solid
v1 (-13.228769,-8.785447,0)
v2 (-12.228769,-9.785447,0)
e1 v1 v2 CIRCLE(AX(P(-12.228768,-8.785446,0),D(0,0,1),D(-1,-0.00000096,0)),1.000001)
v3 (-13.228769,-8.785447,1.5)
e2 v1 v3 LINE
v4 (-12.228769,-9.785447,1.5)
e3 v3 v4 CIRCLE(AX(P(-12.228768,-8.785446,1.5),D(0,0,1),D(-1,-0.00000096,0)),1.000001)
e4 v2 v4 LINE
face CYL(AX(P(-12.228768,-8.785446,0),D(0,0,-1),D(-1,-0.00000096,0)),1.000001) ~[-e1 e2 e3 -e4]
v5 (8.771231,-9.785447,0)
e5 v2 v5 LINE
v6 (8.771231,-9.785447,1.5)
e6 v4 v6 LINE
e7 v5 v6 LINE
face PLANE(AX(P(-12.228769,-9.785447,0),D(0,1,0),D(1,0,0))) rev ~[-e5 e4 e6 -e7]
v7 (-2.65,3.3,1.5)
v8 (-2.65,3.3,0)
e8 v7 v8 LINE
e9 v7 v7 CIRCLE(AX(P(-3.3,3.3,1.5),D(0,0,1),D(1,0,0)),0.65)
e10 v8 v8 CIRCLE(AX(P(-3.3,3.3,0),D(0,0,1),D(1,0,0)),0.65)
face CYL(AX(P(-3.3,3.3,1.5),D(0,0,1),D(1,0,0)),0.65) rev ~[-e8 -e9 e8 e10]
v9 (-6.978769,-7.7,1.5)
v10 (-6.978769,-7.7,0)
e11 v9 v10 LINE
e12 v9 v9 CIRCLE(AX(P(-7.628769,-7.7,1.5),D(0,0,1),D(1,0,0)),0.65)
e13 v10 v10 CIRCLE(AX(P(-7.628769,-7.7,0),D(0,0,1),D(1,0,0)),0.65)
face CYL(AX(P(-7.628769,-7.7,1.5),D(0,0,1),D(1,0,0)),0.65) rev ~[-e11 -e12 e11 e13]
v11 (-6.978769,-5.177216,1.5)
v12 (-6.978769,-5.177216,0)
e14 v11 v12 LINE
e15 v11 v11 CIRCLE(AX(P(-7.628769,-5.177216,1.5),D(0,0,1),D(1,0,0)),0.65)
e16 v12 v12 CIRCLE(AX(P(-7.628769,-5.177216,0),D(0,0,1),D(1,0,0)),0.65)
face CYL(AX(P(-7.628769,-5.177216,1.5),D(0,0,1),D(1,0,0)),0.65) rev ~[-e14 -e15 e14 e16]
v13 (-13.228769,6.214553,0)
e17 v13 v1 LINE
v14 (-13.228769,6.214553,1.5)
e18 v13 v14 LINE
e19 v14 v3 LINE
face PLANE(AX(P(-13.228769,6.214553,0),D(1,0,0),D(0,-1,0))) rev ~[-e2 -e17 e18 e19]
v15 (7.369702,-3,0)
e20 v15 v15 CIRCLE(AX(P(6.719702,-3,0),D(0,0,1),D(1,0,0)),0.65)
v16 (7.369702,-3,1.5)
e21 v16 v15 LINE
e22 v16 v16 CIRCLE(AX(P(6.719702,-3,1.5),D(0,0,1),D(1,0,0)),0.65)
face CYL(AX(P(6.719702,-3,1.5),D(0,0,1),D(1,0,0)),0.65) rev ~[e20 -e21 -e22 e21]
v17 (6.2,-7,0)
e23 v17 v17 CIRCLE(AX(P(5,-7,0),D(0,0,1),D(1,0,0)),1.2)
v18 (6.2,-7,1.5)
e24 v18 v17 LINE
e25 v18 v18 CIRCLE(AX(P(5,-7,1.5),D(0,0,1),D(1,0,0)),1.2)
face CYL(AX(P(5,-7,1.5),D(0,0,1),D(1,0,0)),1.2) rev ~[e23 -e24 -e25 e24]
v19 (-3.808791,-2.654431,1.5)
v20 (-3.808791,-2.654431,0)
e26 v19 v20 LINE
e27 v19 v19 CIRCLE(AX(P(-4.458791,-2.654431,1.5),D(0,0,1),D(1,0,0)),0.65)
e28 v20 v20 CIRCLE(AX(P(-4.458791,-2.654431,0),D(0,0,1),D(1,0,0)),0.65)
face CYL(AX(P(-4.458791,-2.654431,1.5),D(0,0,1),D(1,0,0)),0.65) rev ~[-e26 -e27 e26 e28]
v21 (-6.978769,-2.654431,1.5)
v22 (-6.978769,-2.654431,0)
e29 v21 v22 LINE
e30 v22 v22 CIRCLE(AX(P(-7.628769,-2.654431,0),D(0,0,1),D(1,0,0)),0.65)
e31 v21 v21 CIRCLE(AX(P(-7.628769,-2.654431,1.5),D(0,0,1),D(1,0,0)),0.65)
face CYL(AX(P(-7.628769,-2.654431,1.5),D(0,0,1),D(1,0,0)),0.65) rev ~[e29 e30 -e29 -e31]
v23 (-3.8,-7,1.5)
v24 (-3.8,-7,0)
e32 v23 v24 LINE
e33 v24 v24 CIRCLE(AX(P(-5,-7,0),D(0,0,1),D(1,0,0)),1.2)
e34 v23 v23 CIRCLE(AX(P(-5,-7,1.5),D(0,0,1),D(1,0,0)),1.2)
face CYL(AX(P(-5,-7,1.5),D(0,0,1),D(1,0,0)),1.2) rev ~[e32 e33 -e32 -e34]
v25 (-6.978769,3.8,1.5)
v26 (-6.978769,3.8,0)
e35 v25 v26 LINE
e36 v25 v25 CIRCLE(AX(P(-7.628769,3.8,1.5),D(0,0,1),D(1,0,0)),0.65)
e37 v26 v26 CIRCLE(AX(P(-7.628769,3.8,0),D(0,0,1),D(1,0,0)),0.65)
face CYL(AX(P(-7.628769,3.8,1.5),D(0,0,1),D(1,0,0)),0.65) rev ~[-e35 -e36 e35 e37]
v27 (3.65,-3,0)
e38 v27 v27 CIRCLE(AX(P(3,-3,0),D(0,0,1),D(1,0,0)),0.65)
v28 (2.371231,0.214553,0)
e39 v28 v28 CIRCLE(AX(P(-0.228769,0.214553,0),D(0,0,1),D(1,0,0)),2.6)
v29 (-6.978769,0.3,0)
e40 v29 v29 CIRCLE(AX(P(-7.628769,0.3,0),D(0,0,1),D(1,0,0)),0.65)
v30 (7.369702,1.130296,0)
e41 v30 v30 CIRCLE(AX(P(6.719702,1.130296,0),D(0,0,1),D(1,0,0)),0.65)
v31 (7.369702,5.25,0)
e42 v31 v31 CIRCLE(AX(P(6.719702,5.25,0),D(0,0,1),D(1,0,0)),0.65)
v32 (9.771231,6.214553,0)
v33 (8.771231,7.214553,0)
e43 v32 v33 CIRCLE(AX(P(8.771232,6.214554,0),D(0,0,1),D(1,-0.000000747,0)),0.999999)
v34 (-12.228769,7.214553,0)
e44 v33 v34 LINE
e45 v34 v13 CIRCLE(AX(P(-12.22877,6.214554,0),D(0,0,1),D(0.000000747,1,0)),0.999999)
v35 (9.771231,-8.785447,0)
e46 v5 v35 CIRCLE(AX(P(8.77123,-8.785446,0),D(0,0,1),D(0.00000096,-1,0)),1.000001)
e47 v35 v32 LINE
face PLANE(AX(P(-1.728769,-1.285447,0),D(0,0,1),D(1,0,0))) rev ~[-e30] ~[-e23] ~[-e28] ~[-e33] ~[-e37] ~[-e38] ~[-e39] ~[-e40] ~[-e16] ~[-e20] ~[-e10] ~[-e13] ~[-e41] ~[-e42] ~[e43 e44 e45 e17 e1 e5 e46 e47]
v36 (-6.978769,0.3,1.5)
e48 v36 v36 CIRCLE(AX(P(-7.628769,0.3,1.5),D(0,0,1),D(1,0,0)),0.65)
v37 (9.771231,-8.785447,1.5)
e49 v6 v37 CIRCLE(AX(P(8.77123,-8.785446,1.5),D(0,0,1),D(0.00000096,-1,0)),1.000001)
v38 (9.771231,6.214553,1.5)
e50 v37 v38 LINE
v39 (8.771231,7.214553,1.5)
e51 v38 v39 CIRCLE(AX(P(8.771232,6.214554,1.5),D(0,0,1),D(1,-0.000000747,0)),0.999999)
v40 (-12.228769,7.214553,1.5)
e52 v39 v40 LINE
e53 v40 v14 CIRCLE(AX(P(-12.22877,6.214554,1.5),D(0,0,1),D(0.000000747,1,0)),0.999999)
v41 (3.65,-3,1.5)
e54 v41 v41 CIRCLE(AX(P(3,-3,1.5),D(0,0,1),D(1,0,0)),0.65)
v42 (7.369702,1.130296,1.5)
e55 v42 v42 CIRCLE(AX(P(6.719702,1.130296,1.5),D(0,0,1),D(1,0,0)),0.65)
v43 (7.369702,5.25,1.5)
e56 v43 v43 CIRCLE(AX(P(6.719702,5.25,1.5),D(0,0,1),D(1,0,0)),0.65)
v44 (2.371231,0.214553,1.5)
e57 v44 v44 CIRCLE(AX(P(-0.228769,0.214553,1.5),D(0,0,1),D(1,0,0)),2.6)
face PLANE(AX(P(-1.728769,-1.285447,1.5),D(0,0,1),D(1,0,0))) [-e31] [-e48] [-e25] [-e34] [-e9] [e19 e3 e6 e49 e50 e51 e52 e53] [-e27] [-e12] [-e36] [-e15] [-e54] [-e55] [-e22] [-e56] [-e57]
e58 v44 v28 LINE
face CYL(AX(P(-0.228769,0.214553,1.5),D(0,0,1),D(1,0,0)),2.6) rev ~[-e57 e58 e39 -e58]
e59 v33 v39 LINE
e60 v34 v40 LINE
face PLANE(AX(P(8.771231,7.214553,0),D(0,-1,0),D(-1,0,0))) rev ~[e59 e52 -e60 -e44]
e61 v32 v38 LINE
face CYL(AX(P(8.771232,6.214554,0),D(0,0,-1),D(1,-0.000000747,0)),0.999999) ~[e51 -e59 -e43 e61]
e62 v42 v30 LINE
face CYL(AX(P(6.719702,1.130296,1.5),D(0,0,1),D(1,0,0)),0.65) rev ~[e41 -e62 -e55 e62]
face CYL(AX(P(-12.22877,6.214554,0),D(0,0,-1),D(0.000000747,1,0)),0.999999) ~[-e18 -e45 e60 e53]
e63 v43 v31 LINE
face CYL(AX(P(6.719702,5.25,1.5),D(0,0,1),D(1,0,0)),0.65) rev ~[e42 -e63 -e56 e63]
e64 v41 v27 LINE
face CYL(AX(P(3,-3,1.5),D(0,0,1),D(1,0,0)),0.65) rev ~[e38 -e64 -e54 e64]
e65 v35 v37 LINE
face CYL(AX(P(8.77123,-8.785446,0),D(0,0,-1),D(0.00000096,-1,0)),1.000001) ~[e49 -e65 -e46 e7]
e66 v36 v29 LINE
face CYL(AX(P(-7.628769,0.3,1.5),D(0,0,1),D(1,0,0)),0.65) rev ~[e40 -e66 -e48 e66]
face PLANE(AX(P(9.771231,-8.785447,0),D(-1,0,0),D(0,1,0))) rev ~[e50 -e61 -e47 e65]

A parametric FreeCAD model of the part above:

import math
import FreeCAD as App
import Part
import Sketcher

V = App.Vector
Q = App.Units.Quantity

doc = App.newDocument("Part")
body = doc.addObject("PartDesign::Body", "Body")

sketch1 = body.newObject("Sketcher::SketchObject", "Sketch")
sketch1.AttachmentSupport = (doc.getObject("XY_Plane"), [""])
sketch1.MapMode = "FlatFace"
sketch1.addGeometry(Part.LineSegment(V(8.771231, 7.214553, 0), V(-12.228769, 7.214553, 0)), False)
sketch1.addGeometry(Part.ArcOfCircle(Part.Circle(V(-12.22877, 6.214554, 0), V(0, 0, 1), 0.999999), math.radians(89.999957), math.radians(180.000043)), False)
sketch1.addGeometry(Part.LineSegment(V(-13.228769, 6.214553, 0), V(-13.228769, -8.785447, 0)), False)
sketch1.addGeometry(Part.ArcOfCircle(Part.Circle(V(-12.228768, -8.785446, 0), V(0, 0, 1), 1.000001), math.radians(-179.999945), math.radians(-90.000055)), False)
sketch1.addGeometry(Part.LineSegment(V(-12.228769, -9.785447, 0), V(8.771231, -9.785447, 0)), False)
sketch1.addGeometry(Part.ArcOfCircle(Part.Circle(V(8.77123, -8.785446, 0), V(0, 0, 1), 1.000001), math.radians(-89.999945), math.radians(-0.000055)), False)
sketch1.addGeometry(Part.LineSegment(V(9.771231, -8.785447, 0), V(9.771231, 6.214553, 0)), False)
sketch1.addGeometry(Part.ArcOfCircle(Part.Circle(V(8.771232, 6.214554, 0), V(0, 0, 1), 0.999999), math.radians(-0.000043), math.radians(90.000043)), False)
sketch1.addConstraint(Sketcher.Constraint("Tangent", 0, 2, 1, 1))
sketch1.addConstraint(Sketcher.Constraint("Tangent", 1, 2, 2, 1))
sketch1.addConstraint(Sketcher.Constraint("Tangent", 2, 2, 3, 1))
sketch1.addConstraint(Sketcher.Constraint("Tangent", 3, 2, 4, 1))
sketch1.addConstraint(Sketcher.Constraint("Tangent", 4, 2, 5, 1))
sketch1.addConstraint(Sketcher.Constraint("Tangent", 5, 2, 6, 1))
sketch1.addConstraint(Sketcher.Constraint("Tangent", 6, 2, 7, 1))
sketch1.addConstraint(Sketcher.Constraint("Tangent", 7, 2, 0, 1))
sketch1.addConstraint(Sketcher.Constraint("Horizontal", 0))
sketch1.addConstraint(Sketcher.Constraint("Vertical", 2))
sketch1.addConstraint(Sketcher.Constraint("Horizontal", 4))
sketch1.addConstraint(Sketcher.Constraint("Vertical", 6))
sketch1.addConstraint(Sketcher.Constraint("Equal", 1, 3))
sketch1.addConstraint(Sketcher.Constraint("Equal", 3, 5))
sketch1.addConstraint(Sketcher.Constraint("Equal", 5, 7))
sketch1.addConstraint(Sketcher.Constraint("Radius", 1, Q("0.999999 mm")))
sketch1.addConstraint(Sketcher.Constraint("DistanceX", 0, 2, 0, 1, Q("21 mm")))
sketch1.addConstraint(Sketcher.Constraint("DistanceY", 2, 2, 2, 1, Q("15 mm")))
sketch1.addConstraint(Sketcher.Constraint("DistanceX", 1, 3, -1, 1, Q("12.22877 mm")))
sketch1.addConstraint(Sketcher.Constraint("DistanceY", -1, 1, 1, 3, Q("6.214554 mm")))
pad1 = body.newObject("PartDesign::Pad", "Pad")
pad1.Profile = sketch1
pad1.Length = 1.5

sketch2 = body.newObject("Sketcher::SketchObject", "Sketch001")
sketch2.AttachmentSupport = (doc.getObject("XY_Plane"), [""])
sketch2.MapMode = "FlatFace"
sketch2.AttachmentOffset = App.Placement(V(0, 0, 1.5), App.Rotation())
sketch2.addGeometry(Part.Circle(V(-5, -7, 0), V(0, 0, 1), 1.2), False)
sketch2.addGeometry(Part.Circle(V(5, -7, 0), V(0, 0, 1), 1.2), False)
sketch2.addConstraint(Sketcher.Constraint("Equal", 0, 1))
sketch2.addConstraint(Sketcher.Constraint("Symmetric", 0, 3, 1, 3, -2))
sketch2.addConstraint(Sketcher.Constraint("Diameter", 0, Q("2.4 mm")))
sketch2.addConstraint(Sketcher.Constraint("DistanceX", 0, 3, -1, 1, Q("5 mm")))
sketch2.addConstraint(Sketcher.Constraint("DistanceY", 0, 3, -1, 1, Q("7 mm")))
pocket1 = body.newObject("PartDesign::Pocket", "Pocket")
pocket1.Profile = sketch2
pocket1.Length = 4

sketch3 = body.newObject("Sketcher::SketchObject", "Sketch002")
sketch3.AttachmentSupport = (doc.getObject("XY_Plane"), [""])
sketch3.MapMode = "FlatFace"
sketch3.AttachmentOffset = App.Placement(V(0, 0, 1.5), App.Rotation())
sketch3.addGeometry(Part.Circle(V(-7.628769, -7.7, 0), V(0, 0, 1), 0.65), False)
sketch3.addGeometry(Part.Circle(V(-7.628769, -5.177216, 0), V(0, 0, 1), 0.65), False)
sketch3.addGeometry(Part.Circle(V(-7.628769, -2.654431, 0), V(0, 0, 1), 0.65), False)
sketch3.addGeometry(Part.Circle(V(-4.458791, -2.654431, 0), V(0, 0, 1), 0.65), False)
sketch3.addConstraint(Sketcher.Constraint("Equal", 0, 1))
sketch3.addConstraint(Sketcher.Constraint("Equal", 1, 2))
sketch3.addConstraint(Sketcher.Constraint("Equal", 2, 3))
sketch3.addConstraint(Sketcher.Constraint("Horizontal", 2, 3, 3, 3))
sketch3.addConstraint(Sketcher.Constraint("Vertical", 0, 3, 1, 3))
sketch3.addConstraint(Sketcher.Constraint("Vertical", 1, 3, 2, 3))
sketch3.addConstraint(Sketcher.Constraint("Diameter", 0, Q("1.3 mm")))
sketch3.addConstraint(Sketcher.Constraint("DistanceY", 0, 3, -1, 1, Q("7.7 mm")))
sketch3.addConstraint(Sketcher.Constraint("DistanceX", 0, 3, -1, 1, Q("7.628769 mm")))
sketch3.addConstraint(Sketcher.Constraint("DistanceY", 2, 3, -1, 1, Q("2.654431 mm")))
sketch3.addConstraint(Sketcher.Constraint("DistanceX", 3, 3, -1, 1, Q("4.458791 mm")))
sketch3.addConstraint(Sketcher.Constraint("DistanceY", 1, 3, -1, 1, Q("5.177216 mm")))
pocket2 = body.newObject("PartDesign::Pocket", "Pocket001")
pocket2.Profile = sketch3
pocket2.Length = 25

sketch4 = body.newObject("Sketcher::SketchObject", "Sketch003")
sketch4.AttachmentSupport = (doc.getObject("XY_Plane"), [""])
sketch4.MapMode = "FlatFace"
sketch4.AttachmentOffset = App.Placement(V(0, 0, 1.5), App.Rotation())
sketch4.addGeometry(Part.Circle(V(6.719702, 5.25, 0), V(0, 0, 1), 0.65), False)
sketch4.addGeometry(Part.Circle(V(6.719702, 1.130296, 0), V(0, 0, 1), 0.65), False)
sketch4.addGeometry(Part.Circle(V(6.719702, -3, 0), V(0, 0, 1), 0.65), False)
sketch4.addConstraint(Sketcher.Constraint("Equal", 0, 1))
sketch4.addConstraint(Sketcher.Constraint("Equal", 1, 2))
sketch4.addConstraint(Sketcher.Constraint("Vertical", 0, 3, 1, 3))
sketch4.addConstraint(Sketcher.Constraint("Vertical", 1, 3, 2, 3))
sketch4.addConstraint(Sketcher.Constraint("Diameter", 0, Q("1.3 mm")))
sketch4.addConstraint(Sketcher.Constraint("DistanceY", 2, 3, -1, 1, Q("3 mm")))
sketch4.addConstraint(Sketcher.Constraint("DistanceY", -1, 1, 0, 3, Q("5.25 mm")))
sketch4.addConstraint(Sketcher.Constraint("DistanceX", -1, 1, 0, 3, Q("6.719702 mm")))
sketch4.addConstraint(Sketcher.Constraint("DistanceY", -1, 1, 1, 3, Q("1.130296 mm")))
pocket3 = body.newObject("PartDesign::Pocket", "Pocket002")
pocket3.Profile = sketch4
pocket3.Length = 25

sketch5 = body.newObject("Sketcher::SketchObject", "Sketch004")
sketch5.AttachmentSupport = (doc.getObject("XY_Plane"), [""])
sketch5.MapMode = "FlatFace"
sketch5.AttachmentOffset = App.Placement(V(0, 0, 1.5), App.Rotation())
sketch5.addGeometry(Part.Circle(V(-7.628769, 3.8, 0), V(0, 0, 1), 0.65), False)
sketch5.addGeometry(Part.Circle(V(-7.628769, 0.3, 0), V(0, 0, 1), 0.65), False)
sketch5.addConstraint(Sketcher.Constraint("Equal", 0, 1))
sketch5.addConstraint(Sketcher.Constraint("Vertical", 0, 3, 1, 3))
sketch5.addConstraint(Sketcher.Constraint("Diameter", 0, Q("1.3 mm")))
sketch5.addConstraint(Sketcher.Constraint("DistanceY", -1, 1, 0, 3, Q("3.8 mm")))
sketch5.addConstraint(Sketcher.Constraint("DistanceY", -1, 1, 1, 3, Q("0.3 mm")))
sketch5.addConstraint(Sketcher.Constraint("DistanceX", 0, 3, -1, 1, Q("7.628769 mm")))
pocket4 = body.newObject("PartDesign::Pocket", "Pocket003")
pocket4.Profile = sketch5
pocket4.Length = 25

sketch6 = body.newObject("Sketcher::SketchObject", "Sketch005")
sketch6.AttachmentSupport = (doc.getObject("XY_Plane"), [""])
sketch6.MapMode = "FlatFace"
sketch6.AttachmentOffset = App.Placement(V(0, 0, 1.5), App.Rotation())
sketch6.addGeometry(Part.Circle(V(-5, -7, 0), V(0, 0, 1), 1.2), False)
sketch6.addGeometry(Part.Circle(V(5, -7, 0), V(0, 0, 1), 1.2), False)
sketch6.addConstraint(Sketcher.Constraint("Equal", 0, 1))
sketch6.addConstraint(Sketcher.Constraint("Symmetric", 0, 3, 1, 3, -2))
sketch6.addConstraint(Sketcher.Constraint("Diameter", 0, Q("2.4 mm")))
sketch6.addConstraint(Sketcher.Constraint("DistanceX", 0, 3, -1, 1, Q("5 mm")))
sketch6.addConstraint(Sketcher.Constraint("DistanceY", 0, 3, -1, 1, Q("7 mm")))
pocket5 = body.newObject("PartDesign::Pocket", "Pocket004")
pocket5.Profile = sketch6
pocket5.Length = 25

sketch7 = body.newObject("Sketcher::SketchObject", "Sketch006")
sketch7.AttachmentSupport = (doc.getObject("XY_Plane"), [""])
sketch7.MapMode = "FlatFace"
sketch7.AttachmentOffset = App.Placement(V(0, 0, 1.5), App.Rotation())
sketch7.addGeometry(Part.Circle(V(-0.228769, 0.214553, 0), V(0, 0, 1), 2.6), False)
sketch7.addConstraint(Sketcher.Constraint("Diameter", 0, Q("5.2 mm")))
sketch7.addConstraint(Sketcher.Constraint("DistanceX", 0, 3, -1, 1, Q("0.228769 mm")))
sketch7.addConstraint(Sketcher.Constraint("DistanceY", -1, 1, 0, 3, Q("0.214553 mm")))
pocket6 = body.newObject("PartDesign::Pocket", "Pocket005")
pocket6.Profile = sketch7
pocket6.Length = 25

sketch8 = body.newObject("Sketcher::SketchObject", "Sketch007")
sketch8.AttachmentSupport = (doc.getObject("XY_Plane"), [""])
sketch8.MapMode = "FlatFace"
sketch8.AttachmentOffset = App.Placement(V(0, 0, 1.5), App.Rotation())
sketch8.addGeometry(Part.Circle(V(3, -3, 0), V(0, 0, 1), 0.65), False)
sketch8.addGeometry(Part.Circle(V(-3.3, 3.3, 0), V(0, 0, 1), 0.65), False)
sketch8.addConstraint(Sketcher.Constraint("Equal", 0, 1))
sketch8.addConstraint(Sketcher.Constraint("Diameter", 0, Q("1.3 mm")))
sketch8.addConstraint(Sketcher.Constraint("DistanceX", -1, 1, 0, 3, Q("3 mm")))
sketch8.addConstraint(Sketcher.Constraint("DistanceY", 0, 3, -1, 1, Q("3 mm")))
sketch8.addConstraint(Sketcher.Constraint("DistanceX", 1, 3, -1, 1, Q("3.3 mm")))
sketch8.addConstraint(Sketcher.Constraint("DistanceY", -1, 1, 1, 3, Q("3.3 mm")))
pocket7 = body.newObject("PartDesign::Pocket", "Pocket006")
pocket7.Profile = sketch8
pocket7.Length = 25

doc.recompute()
